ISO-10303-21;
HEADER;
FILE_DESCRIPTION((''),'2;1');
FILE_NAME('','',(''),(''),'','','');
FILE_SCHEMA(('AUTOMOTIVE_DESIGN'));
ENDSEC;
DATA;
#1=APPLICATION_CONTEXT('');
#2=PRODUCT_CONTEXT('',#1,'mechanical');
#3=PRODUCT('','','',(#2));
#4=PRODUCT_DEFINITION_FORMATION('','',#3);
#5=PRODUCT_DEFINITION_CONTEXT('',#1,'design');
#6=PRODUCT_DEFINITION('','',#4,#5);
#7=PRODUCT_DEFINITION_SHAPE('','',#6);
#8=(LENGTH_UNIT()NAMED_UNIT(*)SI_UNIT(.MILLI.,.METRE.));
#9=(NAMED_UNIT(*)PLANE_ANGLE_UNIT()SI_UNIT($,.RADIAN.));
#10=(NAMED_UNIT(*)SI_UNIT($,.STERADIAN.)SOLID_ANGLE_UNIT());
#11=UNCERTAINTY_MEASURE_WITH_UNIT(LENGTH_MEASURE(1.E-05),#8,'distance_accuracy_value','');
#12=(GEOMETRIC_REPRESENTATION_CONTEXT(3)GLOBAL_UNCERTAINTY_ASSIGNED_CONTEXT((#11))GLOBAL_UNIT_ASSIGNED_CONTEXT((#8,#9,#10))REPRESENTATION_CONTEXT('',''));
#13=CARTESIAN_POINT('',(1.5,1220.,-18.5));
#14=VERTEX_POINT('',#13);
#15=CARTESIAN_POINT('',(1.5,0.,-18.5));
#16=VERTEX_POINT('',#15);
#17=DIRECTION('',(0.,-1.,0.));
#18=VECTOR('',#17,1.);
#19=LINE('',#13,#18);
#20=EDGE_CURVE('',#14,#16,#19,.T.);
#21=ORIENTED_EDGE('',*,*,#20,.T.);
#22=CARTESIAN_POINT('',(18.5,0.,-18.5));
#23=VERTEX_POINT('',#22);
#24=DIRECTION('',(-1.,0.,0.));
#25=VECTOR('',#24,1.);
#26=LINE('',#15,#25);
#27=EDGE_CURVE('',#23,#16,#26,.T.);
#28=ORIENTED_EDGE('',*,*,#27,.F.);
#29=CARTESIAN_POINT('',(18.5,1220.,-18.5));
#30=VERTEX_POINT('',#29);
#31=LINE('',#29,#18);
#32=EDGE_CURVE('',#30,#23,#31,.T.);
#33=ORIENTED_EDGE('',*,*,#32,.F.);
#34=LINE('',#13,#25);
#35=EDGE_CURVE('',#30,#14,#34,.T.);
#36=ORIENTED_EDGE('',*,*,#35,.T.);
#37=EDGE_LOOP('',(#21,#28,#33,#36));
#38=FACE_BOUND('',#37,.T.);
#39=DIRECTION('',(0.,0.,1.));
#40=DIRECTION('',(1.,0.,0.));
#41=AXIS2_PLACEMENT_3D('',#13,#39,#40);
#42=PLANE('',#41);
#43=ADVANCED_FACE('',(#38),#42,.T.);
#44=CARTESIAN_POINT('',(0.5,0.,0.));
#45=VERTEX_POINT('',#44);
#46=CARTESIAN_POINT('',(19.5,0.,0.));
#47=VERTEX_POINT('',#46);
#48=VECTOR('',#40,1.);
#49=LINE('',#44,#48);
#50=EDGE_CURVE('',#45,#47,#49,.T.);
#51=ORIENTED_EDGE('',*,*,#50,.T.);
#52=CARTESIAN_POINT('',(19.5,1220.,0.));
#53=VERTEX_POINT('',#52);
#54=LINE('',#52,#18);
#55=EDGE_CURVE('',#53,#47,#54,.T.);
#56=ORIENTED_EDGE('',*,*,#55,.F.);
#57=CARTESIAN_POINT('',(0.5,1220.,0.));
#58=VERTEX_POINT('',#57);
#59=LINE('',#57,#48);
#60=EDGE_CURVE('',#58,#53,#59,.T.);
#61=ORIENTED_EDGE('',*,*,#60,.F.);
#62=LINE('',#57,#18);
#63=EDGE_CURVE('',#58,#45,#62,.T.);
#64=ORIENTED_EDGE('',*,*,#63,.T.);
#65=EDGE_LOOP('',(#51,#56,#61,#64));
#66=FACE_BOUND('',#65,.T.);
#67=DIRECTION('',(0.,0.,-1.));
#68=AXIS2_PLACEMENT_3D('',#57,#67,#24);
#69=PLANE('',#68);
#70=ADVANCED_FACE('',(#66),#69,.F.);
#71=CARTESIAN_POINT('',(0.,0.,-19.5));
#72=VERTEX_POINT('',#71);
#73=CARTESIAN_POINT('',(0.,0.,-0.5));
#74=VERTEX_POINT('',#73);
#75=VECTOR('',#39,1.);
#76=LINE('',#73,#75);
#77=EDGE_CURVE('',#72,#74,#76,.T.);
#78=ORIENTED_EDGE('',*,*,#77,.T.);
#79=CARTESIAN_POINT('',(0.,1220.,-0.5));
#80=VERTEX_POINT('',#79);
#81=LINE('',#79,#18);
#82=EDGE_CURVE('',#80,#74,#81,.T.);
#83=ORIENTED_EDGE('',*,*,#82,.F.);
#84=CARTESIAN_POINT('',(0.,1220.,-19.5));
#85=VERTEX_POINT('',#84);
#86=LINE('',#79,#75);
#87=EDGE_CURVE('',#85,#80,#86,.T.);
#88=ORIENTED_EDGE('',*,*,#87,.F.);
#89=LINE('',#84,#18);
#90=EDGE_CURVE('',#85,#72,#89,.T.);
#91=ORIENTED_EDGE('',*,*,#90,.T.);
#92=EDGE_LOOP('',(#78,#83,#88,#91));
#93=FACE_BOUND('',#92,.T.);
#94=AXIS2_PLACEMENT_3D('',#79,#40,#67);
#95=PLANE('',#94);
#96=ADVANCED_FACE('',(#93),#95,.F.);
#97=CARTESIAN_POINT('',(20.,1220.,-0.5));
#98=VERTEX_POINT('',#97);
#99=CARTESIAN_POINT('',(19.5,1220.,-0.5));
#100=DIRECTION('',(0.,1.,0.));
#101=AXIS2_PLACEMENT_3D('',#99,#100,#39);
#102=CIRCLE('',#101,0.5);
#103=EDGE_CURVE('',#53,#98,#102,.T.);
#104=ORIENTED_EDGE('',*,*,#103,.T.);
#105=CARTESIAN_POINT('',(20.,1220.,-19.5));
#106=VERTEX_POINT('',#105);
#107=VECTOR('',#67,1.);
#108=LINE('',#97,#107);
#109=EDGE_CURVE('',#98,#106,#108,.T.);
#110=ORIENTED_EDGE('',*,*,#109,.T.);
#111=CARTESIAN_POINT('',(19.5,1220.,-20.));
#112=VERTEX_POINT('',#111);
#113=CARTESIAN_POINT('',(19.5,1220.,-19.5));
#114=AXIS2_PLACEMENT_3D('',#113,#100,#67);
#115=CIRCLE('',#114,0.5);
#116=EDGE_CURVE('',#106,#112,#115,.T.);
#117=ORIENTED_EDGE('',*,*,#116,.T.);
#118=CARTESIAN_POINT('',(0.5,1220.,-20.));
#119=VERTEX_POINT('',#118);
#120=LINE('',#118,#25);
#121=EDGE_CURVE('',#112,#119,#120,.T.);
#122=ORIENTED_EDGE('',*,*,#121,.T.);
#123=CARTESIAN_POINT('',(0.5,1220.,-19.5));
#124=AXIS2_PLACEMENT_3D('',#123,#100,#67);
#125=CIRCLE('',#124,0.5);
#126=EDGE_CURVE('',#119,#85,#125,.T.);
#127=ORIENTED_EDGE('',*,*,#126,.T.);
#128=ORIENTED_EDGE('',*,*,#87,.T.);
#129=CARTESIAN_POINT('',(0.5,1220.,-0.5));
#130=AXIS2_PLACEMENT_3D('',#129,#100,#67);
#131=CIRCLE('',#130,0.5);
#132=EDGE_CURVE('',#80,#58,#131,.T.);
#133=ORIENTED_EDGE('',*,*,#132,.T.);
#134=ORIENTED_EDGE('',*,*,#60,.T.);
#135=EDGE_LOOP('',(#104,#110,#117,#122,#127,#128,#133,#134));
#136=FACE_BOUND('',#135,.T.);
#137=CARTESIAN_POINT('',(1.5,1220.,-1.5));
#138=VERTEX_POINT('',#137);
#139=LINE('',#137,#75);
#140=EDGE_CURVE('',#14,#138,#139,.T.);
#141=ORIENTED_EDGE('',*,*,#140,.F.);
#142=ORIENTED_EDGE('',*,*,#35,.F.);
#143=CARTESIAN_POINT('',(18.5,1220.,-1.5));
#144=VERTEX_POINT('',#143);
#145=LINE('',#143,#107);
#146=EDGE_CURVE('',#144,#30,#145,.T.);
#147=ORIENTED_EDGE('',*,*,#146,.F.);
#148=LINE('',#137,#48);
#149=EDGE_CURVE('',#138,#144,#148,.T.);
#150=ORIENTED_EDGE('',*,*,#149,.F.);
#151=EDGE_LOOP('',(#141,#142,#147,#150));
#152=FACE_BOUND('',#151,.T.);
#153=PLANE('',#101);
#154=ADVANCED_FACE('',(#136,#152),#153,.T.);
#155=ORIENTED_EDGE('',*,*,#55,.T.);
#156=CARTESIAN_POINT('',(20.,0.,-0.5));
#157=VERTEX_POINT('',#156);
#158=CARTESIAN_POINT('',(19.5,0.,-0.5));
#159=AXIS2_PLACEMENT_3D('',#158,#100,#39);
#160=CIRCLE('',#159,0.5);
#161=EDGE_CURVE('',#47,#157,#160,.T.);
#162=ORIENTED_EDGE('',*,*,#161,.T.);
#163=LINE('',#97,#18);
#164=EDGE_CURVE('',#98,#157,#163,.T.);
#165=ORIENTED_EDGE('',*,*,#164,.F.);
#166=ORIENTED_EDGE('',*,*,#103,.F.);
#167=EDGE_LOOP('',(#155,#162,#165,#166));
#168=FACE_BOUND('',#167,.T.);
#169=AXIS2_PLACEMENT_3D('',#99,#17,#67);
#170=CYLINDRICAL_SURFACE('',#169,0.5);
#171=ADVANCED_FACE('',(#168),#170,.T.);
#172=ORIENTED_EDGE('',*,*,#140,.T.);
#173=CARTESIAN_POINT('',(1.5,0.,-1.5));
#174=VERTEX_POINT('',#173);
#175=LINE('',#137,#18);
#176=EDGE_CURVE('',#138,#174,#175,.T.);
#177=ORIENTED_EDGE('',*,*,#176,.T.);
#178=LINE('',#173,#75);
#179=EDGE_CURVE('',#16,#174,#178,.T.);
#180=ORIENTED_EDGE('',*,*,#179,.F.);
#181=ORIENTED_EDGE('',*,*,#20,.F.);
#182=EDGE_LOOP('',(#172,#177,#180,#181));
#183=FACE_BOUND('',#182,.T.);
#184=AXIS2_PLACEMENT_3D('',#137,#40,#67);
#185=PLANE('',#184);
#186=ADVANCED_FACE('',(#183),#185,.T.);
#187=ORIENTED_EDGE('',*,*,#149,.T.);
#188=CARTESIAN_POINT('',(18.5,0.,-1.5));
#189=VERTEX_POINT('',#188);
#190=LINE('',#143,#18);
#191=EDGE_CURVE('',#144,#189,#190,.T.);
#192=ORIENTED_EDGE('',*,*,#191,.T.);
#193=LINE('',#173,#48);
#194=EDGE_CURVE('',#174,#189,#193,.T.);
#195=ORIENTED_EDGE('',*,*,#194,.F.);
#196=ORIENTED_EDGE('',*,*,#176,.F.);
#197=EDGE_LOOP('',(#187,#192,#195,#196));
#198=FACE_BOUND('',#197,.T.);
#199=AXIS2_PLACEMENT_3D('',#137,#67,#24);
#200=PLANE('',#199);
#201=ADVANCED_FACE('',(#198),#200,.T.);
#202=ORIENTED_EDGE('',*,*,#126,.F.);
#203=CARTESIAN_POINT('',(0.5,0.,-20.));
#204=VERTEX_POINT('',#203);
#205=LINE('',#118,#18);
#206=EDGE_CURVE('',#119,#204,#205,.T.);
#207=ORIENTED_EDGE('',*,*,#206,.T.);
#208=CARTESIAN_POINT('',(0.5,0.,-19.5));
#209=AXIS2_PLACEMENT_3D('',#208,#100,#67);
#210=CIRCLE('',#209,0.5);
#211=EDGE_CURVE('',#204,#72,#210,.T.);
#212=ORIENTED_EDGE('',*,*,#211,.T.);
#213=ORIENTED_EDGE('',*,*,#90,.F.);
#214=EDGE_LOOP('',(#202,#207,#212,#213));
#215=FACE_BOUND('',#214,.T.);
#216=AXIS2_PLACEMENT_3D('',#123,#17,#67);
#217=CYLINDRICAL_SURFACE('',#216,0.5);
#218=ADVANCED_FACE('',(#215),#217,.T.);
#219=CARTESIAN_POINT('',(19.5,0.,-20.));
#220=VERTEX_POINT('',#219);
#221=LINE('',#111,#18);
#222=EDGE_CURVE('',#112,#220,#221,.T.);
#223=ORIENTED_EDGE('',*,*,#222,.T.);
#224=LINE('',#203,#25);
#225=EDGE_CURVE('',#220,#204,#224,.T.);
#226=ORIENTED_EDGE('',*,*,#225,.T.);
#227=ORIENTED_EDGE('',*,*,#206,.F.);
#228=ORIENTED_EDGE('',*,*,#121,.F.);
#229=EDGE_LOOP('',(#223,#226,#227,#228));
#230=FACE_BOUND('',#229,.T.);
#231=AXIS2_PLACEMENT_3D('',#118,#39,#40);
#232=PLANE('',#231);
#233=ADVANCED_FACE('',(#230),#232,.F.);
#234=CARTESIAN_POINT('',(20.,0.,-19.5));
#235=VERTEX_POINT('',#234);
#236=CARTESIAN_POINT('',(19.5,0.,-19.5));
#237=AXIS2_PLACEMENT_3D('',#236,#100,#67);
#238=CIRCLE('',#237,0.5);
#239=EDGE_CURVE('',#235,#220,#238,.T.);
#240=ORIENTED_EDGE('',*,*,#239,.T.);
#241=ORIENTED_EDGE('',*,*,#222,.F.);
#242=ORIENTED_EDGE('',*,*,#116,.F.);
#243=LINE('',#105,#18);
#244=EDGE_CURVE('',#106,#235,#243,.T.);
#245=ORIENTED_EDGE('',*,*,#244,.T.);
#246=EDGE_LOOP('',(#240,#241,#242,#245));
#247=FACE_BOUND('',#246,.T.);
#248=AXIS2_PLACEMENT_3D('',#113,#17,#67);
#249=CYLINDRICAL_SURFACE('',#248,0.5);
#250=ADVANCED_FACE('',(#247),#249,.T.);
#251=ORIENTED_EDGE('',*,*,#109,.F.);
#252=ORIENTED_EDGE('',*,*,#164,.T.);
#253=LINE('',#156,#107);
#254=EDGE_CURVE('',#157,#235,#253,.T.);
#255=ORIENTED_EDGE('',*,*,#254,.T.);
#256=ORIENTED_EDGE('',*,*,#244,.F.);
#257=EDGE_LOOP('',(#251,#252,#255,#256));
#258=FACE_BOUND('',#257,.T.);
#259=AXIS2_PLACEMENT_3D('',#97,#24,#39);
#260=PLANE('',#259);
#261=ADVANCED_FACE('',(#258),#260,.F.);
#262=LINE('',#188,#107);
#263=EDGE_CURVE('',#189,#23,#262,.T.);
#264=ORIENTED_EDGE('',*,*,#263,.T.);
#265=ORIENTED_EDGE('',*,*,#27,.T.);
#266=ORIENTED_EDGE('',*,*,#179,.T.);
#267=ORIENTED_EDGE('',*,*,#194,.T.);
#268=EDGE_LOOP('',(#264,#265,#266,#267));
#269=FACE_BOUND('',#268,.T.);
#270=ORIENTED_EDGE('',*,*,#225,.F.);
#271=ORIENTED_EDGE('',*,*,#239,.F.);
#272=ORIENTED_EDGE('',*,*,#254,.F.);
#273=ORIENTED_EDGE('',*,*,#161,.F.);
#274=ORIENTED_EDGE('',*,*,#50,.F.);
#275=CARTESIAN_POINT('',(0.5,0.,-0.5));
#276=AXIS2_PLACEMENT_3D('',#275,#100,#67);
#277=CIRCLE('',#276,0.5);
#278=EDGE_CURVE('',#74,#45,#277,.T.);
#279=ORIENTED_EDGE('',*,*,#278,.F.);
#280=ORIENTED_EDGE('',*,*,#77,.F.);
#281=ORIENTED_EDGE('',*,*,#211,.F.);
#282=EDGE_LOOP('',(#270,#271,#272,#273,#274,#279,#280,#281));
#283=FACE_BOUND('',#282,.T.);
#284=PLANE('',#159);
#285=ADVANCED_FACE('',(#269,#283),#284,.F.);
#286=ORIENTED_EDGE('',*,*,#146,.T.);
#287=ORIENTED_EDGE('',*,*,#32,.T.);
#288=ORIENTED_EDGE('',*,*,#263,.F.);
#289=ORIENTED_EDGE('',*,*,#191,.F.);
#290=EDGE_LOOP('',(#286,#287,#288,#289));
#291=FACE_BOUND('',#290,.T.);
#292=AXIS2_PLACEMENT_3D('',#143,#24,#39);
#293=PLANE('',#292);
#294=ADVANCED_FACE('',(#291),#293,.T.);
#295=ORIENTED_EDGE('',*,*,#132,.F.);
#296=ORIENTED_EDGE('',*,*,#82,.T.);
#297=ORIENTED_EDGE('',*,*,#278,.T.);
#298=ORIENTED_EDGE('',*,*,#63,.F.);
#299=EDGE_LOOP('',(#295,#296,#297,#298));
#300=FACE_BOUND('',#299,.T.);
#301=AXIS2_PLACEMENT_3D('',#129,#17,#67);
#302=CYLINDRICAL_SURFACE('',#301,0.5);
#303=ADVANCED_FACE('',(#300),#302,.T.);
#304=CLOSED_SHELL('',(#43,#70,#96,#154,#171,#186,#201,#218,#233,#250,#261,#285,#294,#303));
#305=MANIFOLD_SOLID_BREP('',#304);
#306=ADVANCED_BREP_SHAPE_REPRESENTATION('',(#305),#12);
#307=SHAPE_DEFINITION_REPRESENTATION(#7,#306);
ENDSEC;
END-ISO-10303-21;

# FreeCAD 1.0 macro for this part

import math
import FreeCAD as App
import Part
import Sketcher
from FreeCAD import Vector


def add_polygon(sketch, points):
    """Adds a closed chain of lines whose ends are joined by coincident constraints."""
    first, n = sketch.GeometryCount, len(points)
    for a, b in zip(points, points[1:] + points[:1]):
        sketch.addGeometry(Part.LineSegment(App.Vector(*a, 0), App.Vector(*b, 0)), False)
    for i in range(n):
        sketch.addConstraint(Sketcher.Constraint("Coincident", first + i, 2, first + (i + 1) % n, 1))

doc = App.newDocument("Part")
body = doc.addObject("PartDesign::Body", "Body")

# Sketch on XZ plane
sketch1 = doc.addObject("Sketcher::SketchObject", "Sketch")
body.addObject(sketch1)
sketch1.AttachmentSupport = (doc.XZ_Plane, [""])
sketch1.MapMode = "FlatFace"
sketch1.addGeometry(Part.LineSegment(Vector(0.5, 0, 0), Vector(19.5, 0, 0)), False)  # 0
sketch1.addGeometry(Part.ArcOfCircle(Part.Circle(Vector(19.5, -0.5, 0), Vector(0, 0, 1), 0.5), math.radians(0), math.radians(90)), False)  # 1
sketch1.addGeometry(Part.LineSegment(Vector(20, -0.5, 0), Vector(20, -19.5, 0)), False)  # 2
sketch1.addGeometry(Part.ArcOfCircle(Part.Circle(Vector(19.5, -19.5, 0), Vector(0, 0, 1), 0.5), math.radians(-90), math.radians(0)), False)  # 3
sketch1.addGeometry(Part.LineSegment(Vector(19.5, -20, 0), Vector(0.5, -20, 0)), False)  # 4
sketch1.addGeometry(Part.ArcOfCircle(Part.Circle(Vector(0.5, -19.5, 0), Vector(0, 0, 1), 0.5), math.radians(180), math.radians(270)), False)  # 5
sketch1.addGeometry(Part.LineSegment(Vector(0, -19.5, 0), Vector(0, -0.5, 0)), False)  # 6
sketch1.addGeometry(Part.ArcOfCircle(Part.Circle(Vector(0.5, -0.5, 0), Vector(0, 0, 1), 0.5), math.radians(90), math.radians(180)), False)  # 7
add_polygon(sketch1, [(18.5, -1.5), (1.5, -1.5), (1.5, -18.5), (18.5, -18.5)])  # lines 8-11
sketch1.addConstraint([
    Sketcher.Constraint("Tangent", 0, 2, 1, 2),
    Sketcher.Constraint("Tangent", 1, 1, 2, 1),
    Sketcher.Constraint("Tangent", 2, 2, 3, 2),
    Sketcher.Constraint("Tangent", 3, 1, 4, 1),
    Sketcher.Constraint("Tangent", 4, 2, 5, 2),
    Sketcher.Constraint("Tangent", 5, 1, 6, 1),
    Sketcher.Constraint("Tangent", 6, 2, 7, 2),
    Sketcher.Constraint("Tangent", 7, 1, 0, 1),
    Sketcher.Constraint("Horizontal", 0),
    Sketcher.Constraint("Vertical", 2),
    Sketcher.Constraint("Horizontal", 4),
    Sketcher.Constraint("Vertical", 6),
    Sketcher.Constraint("Horizontal", 8),
    Sketcher.Constraint("Vertical", 9),
    Sketcher.Constraint("Horizontal", 10),
    Sketcher.Constraint("Vertical", 11),
    Sketcher.Constraint("Equal", 1, 3),
    Sketcher.Constraint("Equal", 3, 5),
    Sketcher.Constraint("Equal", 5, 7),
    Sketcher.Constraint("PointOnObject", 0, 2, -1),
    Sketcher.Constraint("PointOnObject", 5, 1, -2),
    Sketcher.Constraint("Equal", 4, 2),
    Sketcher.Constraint("Equal", 10, 9),
    Sketcher.Constraint("Radius", 1, 0.5),
    Sketcher.Constraint("DistanceX", 0, 1, 0, 2, 19.0),
    Sketcher.Constraint("DistanceX", 8, 2, 8, 1, 17.0),
    Sketcher.Constraint("DistanceX", 7, 3, 8, 2, 1.0),
    Sketcher.Constraint("DistanceY", 8, 2, 7, 3, 1.0),
])
pad1 = doc.addObject("PartDesign::Pad", "Pad")
body.addObject(pad1)
pad1.Profile = sketch1
pad1.Length = 1220
pad1.Reversed = True

doc.recompute()
